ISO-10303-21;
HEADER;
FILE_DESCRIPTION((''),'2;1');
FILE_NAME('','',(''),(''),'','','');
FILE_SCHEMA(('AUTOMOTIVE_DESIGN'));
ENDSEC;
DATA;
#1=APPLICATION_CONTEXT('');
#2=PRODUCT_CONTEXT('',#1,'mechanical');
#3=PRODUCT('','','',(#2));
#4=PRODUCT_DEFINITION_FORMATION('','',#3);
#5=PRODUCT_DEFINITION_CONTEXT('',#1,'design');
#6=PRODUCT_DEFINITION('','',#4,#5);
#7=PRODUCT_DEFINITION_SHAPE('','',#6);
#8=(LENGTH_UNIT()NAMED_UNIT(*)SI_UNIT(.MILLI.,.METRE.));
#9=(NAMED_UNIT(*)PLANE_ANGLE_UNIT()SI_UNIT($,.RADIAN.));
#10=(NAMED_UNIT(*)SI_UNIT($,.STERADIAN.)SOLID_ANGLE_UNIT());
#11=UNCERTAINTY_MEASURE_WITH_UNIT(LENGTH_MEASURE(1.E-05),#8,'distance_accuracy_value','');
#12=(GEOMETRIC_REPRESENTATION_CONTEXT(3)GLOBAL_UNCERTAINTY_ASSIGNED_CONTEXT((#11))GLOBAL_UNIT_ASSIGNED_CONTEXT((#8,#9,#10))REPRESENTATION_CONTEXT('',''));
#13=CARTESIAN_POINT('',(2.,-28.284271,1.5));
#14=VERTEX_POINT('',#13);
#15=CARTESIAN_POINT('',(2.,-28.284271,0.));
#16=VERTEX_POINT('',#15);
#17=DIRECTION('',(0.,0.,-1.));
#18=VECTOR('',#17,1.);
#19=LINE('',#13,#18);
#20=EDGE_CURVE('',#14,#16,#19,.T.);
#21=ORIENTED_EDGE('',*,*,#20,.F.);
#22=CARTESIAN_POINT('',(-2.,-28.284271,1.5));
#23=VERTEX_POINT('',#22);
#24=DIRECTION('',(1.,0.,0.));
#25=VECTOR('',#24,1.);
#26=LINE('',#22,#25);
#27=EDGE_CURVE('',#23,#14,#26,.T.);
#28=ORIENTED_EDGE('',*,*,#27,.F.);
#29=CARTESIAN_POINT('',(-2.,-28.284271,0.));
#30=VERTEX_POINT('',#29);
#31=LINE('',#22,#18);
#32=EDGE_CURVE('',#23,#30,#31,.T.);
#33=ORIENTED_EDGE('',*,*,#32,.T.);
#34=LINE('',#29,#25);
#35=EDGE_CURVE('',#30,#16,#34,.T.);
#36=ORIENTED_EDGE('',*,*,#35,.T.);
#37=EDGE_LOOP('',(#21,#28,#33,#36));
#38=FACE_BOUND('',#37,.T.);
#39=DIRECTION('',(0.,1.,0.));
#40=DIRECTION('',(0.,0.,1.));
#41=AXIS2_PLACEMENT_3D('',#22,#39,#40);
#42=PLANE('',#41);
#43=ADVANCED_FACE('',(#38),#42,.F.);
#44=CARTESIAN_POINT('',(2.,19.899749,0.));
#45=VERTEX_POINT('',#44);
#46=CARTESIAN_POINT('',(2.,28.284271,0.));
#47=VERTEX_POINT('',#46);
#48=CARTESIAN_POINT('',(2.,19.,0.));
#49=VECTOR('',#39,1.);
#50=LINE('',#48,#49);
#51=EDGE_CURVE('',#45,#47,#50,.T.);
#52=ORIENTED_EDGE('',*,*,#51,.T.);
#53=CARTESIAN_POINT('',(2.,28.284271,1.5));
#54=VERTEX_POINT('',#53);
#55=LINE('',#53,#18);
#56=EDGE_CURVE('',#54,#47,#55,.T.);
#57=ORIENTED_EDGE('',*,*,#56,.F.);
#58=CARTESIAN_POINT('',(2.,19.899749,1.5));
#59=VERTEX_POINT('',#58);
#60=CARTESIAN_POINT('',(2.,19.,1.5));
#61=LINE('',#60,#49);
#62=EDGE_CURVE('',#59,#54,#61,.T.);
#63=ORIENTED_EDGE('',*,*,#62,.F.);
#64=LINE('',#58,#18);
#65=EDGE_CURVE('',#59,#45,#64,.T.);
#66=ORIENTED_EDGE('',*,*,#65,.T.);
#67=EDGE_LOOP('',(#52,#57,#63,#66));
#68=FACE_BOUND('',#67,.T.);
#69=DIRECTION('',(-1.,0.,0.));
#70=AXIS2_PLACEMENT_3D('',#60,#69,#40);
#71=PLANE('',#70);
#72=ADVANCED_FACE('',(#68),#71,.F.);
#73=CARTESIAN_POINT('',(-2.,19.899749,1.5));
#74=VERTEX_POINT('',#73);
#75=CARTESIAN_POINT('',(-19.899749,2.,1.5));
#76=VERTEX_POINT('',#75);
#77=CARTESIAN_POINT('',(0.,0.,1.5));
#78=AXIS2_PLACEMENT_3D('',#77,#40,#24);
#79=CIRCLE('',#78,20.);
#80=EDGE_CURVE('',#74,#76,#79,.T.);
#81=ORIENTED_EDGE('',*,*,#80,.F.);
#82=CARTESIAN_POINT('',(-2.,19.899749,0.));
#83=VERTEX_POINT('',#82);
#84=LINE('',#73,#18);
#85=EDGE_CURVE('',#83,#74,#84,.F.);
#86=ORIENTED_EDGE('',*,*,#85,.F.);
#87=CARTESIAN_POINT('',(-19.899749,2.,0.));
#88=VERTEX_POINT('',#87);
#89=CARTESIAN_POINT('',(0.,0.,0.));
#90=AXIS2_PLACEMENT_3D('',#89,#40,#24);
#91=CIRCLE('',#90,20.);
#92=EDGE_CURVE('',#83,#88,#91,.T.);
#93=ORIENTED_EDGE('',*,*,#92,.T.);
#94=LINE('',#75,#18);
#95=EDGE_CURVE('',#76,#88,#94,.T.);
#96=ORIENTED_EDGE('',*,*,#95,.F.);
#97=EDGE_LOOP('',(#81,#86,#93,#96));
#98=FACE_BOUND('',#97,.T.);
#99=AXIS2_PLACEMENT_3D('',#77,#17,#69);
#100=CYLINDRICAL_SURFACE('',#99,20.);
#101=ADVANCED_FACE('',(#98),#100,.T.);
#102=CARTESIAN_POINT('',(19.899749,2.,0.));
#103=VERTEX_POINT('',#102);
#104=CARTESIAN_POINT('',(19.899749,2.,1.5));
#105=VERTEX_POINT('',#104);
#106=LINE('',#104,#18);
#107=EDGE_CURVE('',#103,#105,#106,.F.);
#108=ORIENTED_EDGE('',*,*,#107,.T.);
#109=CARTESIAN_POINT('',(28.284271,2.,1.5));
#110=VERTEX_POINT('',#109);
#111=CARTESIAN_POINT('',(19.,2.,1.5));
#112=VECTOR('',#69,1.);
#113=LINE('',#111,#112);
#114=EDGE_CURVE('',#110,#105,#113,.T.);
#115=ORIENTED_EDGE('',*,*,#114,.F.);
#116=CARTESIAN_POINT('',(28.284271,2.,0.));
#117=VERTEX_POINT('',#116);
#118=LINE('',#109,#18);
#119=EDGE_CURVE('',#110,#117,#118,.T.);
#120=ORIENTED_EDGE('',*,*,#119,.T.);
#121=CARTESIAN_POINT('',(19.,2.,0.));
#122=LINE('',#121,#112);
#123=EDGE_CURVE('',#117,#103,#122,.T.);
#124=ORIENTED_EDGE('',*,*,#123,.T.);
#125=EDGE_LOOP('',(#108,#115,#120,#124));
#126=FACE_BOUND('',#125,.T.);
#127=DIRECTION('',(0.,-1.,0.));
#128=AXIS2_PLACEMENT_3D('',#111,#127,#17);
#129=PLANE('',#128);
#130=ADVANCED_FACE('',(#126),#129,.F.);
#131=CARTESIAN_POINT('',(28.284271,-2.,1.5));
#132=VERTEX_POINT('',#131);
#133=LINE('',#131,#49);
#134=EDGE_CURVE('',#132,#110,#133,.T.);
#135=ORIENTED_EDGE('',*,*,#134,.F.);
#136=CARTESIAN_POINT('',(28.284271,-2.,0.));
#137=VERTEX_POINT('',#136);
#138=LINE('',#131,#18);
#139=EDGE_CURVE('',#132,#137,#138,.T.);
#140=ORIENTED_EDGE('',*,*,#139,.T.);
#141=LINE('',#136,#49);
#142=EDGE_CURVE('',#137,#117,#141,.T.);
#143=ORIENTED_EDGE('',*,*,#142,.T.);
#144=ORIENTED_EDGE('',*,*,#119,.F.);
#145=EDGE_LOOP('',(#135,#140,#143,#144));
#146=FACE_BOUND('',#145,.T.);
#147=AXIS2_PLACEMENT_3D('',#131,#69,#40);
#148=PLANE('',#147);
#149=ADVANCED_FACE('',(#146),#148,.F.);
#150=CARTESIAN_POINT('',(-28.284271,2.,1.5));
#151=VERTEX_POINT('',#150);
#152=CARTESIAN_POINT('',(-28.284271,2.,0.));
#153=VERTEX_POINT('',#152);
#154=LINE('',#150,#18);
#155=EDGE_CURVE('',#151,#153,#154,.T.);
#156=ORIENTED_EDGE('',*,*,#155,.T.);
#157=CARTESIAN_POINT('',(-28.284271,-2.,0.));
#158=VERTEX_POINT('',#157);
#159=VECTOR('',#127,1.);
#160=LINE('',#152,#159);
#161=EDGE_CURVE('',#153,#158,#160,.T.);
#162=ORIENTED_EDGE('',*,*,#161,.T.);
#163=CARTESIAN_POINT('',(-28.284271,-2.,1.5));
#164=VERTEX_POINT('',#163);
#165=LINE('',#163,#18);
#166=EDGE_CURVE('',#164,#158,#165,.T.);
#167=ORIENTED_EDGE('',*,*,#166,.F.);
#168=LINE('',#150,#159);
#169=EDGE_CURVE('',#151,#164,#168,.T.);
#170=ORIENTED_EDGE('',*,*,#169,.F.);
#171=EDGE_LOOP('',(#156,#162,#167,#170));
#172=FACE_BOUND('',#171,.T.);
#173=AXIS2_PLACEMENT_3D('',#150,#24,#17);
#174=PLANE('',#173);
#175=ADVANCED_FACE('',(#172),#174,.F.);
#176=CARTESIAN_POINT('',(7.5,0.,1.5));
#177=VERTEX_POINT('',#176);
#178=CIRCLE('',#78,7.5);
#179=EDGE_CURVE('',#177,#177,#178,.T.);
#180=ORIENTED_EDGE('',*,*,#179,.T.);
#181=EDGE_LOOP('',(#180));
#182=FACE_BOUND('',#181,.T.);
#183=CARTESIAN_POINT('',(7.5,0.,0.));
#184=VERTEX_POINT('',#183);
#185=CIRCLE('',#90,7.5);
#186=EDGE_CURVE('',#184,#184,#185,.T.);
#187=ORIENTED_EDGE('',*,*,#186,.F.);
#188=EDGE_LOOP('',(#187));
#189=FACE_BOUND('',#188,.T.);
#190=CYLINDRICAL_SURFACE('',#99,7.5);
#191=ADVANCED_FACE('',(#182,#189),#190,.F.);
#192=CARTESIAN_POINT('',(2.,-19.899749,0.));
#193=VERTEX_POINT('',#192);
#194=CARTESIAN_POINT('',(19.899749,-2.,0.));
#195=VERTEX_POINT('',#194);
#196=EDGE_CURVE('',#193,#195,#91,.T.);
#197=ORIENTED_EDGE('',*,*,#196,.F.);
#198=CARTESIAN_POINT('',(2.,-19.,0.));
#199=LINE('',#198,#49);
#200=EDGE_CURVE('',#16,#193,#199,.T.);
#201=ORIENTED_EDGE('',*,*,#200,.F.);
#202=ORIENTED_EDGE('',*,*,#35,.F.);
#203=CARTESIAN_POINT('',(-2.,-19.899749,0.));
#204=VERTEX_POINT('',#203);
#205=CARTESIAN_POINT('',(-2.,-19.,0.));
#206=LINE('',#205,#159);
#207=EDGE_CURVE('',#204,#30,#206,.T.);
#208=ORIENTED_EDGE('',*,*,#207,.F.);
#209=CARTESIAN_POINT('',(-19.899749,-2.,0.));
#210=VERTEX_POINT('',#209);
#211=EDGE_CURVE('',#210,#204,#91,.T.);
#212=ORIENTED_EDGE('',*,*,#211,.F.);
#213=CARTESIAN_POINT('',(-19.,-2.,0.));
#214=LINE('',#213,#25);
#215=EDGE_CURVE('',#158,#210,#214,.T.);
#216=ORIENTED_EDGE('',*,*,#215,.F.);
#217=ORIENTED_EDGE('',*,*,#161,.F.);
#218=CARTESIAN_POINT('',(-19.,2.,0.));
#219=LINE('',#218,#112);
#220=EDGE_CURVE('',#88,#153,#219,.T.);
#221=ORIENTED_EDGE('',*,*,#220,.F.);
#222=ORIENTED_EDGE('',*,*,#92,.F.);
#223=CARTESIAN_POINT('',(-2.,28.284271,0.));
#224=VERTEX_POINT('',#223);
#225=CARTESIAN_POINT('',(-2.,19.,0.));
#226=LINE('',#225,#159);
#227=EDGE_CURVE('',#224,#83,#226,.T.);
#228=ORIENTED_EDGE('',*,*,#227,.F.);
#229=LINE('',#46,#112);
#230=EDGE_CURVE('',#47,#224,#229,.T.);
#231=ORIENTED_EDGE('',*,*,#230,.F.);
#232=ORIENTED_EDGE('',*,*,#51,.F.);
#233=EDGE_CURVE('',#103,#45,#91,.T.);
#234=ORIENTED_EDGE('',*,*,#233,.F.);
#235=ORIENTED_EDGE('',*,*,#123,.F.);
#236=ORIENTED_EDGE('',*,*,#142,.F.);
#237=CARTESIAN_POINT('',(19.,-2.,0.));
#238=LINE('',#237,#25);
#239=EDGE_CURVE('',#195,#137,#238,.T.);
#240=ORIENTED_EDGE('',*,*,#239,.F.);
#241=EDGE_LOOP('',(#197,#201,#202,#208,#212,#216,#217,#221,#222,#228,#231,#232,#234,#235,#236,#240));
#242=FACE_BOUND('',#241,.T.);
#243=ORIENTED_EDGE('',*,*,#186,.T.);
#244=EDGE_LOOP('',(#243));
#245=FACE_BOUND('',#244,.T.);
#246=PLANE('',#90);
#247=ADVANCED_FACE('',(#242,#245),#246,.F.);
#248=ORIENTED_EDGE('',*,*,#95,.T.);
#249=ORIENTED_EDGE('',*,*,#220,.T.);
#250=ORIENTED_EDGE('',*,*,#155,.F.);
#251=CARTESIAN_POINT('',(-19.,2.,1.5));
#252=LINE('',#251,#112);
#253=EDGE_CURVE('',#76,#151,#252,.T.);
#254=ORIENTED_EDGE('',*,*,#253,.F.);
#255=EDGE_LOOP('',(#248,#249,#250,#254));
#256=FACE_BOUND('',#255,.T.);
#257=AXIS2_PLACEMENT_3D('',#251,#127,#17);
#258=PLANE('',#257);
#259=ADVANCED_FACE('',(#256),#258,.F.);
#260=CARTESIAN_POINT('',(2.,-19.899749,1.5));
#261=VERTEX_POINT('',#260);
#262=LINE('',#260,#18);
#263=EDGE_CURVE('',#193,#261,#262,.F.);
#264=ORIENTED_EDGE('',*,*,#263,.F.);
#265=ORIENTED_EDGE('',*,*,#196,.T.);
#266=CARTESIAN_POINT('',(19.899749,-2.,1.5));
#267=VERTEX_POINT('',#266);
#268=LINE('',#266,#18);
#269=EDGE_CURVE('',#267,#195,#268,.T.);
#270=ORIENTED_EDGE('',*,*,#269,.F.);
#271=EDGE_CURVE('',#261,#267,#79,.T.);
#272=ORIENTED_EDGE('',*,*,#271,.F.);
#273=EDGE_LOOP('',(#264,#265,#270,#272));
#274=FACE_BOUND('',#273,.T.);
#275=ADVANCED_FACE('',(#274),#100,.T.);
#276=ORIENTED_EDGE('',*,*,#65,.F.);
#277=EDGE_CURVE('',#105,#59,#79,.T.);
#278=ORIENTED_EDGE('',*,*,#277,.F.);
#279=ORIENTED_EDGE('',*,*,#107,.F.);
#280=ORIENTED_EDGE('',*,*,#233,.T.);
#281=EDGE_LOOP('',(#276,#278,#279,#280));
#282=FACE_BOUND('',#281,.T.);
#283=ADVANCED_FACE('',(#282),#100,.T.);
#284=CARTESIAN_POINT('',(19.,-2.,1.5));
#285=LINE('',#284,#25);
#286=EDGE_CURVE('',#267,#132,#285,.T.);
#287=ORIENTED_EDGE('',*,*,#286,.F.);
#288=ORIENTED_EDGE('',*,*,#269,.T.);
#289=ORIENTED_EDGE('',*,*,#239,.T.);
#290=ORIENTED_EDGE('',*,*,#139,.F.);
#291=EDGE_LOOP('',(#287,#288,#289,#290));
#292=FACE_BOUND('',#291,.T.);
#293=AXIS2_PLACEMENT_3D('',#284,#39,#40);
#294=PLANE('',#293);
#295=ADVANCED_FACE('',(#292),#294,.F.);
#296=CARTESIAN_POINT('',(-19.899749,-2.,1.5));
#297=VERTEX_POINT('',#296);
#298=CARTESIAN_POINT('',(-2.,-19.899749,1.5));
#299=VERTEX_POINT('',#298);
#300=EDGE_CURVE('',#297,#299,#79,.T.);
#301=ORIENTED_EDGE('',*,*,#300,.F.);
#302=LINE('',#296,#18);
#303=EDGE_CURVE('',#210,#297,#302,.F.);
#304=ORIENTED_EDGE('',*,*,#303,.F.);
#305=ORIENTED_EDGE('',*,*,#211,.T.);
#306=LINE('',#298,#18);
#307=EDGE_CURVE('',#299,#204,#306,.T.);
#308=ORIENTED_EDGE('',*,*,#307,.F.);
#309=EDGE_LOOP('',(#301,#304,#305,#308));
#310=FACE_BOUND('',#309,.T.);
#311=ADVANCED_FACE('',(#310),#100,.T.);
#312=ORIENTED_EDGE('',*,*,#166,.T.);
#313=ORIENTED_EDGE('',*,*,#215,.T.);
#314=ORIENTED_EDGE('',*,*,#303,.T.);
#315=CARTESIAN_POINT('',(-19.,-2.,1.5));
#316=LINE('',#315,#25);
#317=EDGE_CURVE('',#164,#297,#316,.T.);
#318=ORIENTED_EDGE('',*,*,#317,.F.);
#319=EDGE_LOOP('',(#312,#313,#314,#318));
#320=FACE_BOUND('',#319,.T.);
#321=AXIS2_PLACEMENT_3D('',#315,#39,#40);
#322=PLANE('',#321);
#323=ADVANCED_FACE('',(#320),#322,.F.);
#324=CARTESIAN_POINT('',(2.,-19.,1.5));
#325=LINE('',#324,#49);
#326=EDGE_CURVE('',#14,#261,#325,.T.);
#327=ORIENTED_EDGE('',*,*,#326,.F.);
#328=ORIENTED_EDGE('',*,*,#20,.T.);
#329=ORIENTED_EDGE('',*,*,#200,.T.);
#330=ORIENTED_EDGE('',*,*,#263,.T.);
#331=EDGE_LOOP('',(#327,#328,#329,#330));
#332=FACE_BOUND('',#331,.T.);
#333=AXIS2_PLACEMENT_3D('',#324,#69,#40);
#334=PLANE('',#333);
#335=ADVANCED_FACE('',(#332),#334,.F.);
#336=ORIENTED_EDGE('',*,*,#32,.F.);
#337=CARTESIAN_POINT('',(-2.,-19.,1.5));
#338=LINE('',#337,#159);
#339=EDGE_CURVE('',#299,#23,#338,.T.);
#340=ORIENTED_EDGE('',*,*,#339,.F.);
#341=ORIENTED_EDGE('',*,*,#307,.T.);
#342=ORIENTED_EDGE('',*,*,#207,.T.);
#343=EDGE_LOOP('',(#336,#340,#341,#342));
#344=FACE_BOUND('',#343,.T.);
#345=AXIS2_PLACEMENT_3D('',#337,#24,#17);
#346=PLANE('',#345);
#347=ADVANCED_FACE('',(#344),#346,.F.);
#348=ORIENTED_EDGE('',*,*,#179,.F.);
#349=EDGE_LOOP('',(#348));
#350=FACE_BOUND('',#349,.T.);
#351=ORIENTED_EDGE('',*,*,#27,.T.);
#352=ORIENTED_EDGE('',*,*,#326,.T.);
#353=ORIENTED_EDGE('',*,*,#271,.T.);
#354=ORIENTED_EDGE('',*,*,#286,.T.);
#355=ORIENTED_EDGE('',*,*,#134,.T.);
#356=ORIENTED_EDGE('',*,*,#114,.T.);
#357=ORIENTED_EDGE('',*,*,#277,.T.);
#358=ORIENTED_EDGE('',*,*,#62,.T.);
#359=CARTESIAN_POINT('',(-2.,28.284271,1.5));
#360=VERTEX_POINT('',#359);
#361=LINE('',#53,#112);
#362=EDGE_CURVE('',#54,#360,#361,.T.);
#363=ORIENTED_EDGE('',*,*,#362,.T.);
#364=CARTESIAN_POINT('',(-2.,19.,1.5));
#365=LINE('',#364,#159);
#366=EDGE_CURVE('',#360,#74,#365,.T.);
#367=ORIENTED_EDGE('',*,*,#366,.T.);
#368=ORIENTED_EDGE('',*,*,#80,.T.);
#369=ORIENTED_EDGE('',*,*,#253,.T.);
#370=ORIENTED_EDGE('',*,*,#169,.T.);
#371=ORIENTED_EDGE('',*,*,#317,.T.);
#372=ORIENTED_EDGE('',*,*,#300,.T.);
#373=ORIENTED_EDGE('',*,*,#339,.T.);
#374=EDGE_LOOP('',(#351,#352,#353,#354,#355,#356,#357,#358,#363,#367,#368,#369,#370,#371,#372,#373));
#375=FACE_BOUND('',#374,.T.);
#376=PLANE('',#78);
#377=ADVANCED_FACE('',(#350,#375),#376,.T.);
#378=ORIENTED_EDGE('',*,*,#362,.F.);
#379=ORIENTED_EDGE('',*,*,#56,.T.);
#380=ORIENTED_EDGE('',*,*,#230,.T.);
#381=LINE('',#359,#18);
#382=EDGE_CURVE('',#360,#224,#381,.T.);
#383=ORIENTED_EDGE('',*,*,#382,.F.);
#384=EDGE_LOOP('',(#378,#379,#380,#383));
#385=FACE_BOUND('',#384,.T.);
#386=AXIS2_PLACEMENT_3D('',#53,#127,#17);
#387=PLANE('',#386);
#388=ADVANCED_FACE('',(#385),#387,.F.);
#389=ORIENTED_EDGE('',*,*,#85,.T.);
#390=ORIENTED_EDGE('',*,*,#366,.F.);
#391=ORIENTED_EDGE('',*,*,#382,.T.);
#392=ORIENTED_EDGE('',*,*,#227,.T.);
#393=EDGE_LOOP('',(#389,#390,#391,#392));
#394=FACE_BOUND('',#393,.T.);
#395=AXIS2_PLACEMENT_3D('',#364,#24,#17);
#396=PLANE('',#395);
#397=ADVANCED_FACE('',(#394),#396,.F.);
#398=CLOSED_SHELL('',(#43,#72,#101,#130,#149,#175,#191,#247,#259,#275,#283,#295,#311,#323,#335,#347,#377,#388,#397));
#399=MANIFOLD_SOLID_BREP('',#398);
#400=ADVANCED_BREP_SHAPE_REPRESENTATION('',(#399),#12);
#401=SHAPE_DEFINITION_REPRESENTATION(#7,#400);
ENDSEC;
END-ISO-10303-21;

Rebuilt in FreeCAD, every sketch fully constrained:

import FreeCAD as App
import Part
import Sketcher
from FreeCAD import Vector
Q = App.Units.Quantity

doc = App.newDocument("Part")
body = doc.addObject("PartDesign::Body", "Body")

sketch1 = doc.addObject("Sketcher::SketchObject", "Sketch")
body.addObject(sketch1)
sketch1.AttachmentSupport = (doc.XY_Plane, [""])
sketch1.MapMode = "FlatFace"
sketch1.addGeometry(Part.Circle(Vector(0, 0, 0), Vector(0, 0, 1), 20), False)
sketch1.addGeometry(Part.Circle(Vector(0, 0, 0), Vector(0, 0, 1), 8), False)
sketch1.addConstraint(Sketcher.Constraint("Coincident", 0, 3, -1, 1))
sketch1.addConstraint(Sketcher.Constraint("Coincident", 1, 3, -1, 1))
sketch1.addConstraint(Sketcher.Constraint("Diameter", 0, Q("40 mm")))
sketch1.addConstraint(Sketcher.Constraint("Diameter", 1, Q("15 mm")))
pad1 = doc.addObject("PartDesign::Pad", "Pad")
body.addObject(pad1)
pad1.Profile = sketch1
pad1.Length = 1.5

sketch2 = doc.addObject("Sketcher::SketchObject", "Sketch001")
body.addObject(sketch2)
sketch2.AttachmentSupport = (doc.XY_Plane, [""])
sketch2.MapMode = "FlatFace"
sketch2.addGeometry(Part.LineSegment(Vector(19, 2, 0), Vector(19, -2, 0)), False)
sketch2.addGeometry(Part.LineSegment(Vector(19, -2, 0), Vector(28.3, -2, 0)), False)
sketch2.addGeometry(Part.LineSegment(Vector(28.3, -2, 0), Vector(28.3, 2, 0)), False)
sketch2.addGeometry(Part.LineSegment(Vector(28.3, 2, 0), Vector(19, 2, 0)), False)
sketch2.addGeometry(Part.LineSegment(Vector(-2, 28.3, 0), Vector(-2, 19, 0)), False)
sketch2.addGeometry(Part.LineSegment(Vector(-2, 19, 0), Vector(2, 19, 0)), False)
sketch2.addGeometry(Part.LineSegment(Vector(2, 19, 0), Vector(2, 28.3, 0)), False)
sketch2.addGeometry(Part.LineSegment(Vector(2, 28.3, 0), Vector(-2, 28.3, 0)), False)
sketch2.addGeometry(Part.LineSegment(Vector(-28.3, 2, 0), Vector(-28.3, -2, 0)), False)
sketch2.addGeometry(Part.LineSegment(Vector(-28.3, -2, 0), Vector(-19, -2, 0)), False)
sketch2.addGeometry(Part.LineSegment(Vector(-19, -2, 0), Vector(-19, 2, 0)), False)
sketch2.addGeometry(Part.LineSegment(Vector(-19, 2, 0), Vector(-28.3, 2, 0)), False)
sketch2.addGeometry(Part.LineSegment(Vector(-2, -19, 0), Vector(-2, -28.3, 0)), False)
sketch2.addGeometry(Part.LineSegment(Vector(-2, -28.3, 0), Vector(2, -28.3, 0)), False)
sketch2.addGeometry(Part.LineSegment(Vector(2, -28.3, 0), Vector(2, -19, 0)), False)
sketch2.addGeometry(Part.LineSegment(Vector(2, -19, 0), Vector(-2, -19, 0)), False)
sketch2.addConstraint(Sketcher.Constraint("Coincident", 0, 2, 1, 1))
sketch2.addConstraint(Sketcher.Constraint("Coincident", 1, 2, 2, 1))
sketch2.addConstraint(Sketcher.Constraint("Coincident", 2, 2, 3, 1))
sketch2.addConstraint(Sketcher.Constraint("Coincident", 3, 2, 0, 1))
sketch2.addConstraint(Sketcher.Constraint("Coincident", 4, 2, 5, 1))
sketch2.addConstraint(Sketcher.Constraint("Coincident", 5, 2, 6, 1))
sketch2.addConstraint(Sketcher.Constraint("Coincident", 6, 2, 7, 1))
sketch2.addConstraint(Sketcher.Constraint("Coincident", 7, 2, 4, 1))
sketch2.addConstraint(Sketcher.Constraint("Coincident", 8, 2, 9, 1))
sketch2.addConstraint(Sketcher.Constraint("Coincident", 9, 2, 10, 1))
sketch2.addConstraint(Sketcher.Constraint("Coincident", 10, 2, 11, 1))
sketch2.addConstraint(Sketcher.Constraint("Coincident", 11, 2, 8, 1))
sketch2.addConstraint(Sketcher.Constraint("Coincident", 12, 2, 13, 1))
sketch2.addConstraint(Sketcher.Constraint("Coincident", 13, 2, 14, 1))
sketch2.addConstraint(Sketcher.Constraint("Coincident", 14, 2, 15, 1))
sketch2.addConstraint(Sketcher.Constraint("Coincident", 15, 2, 12, 1))
sketch2.addConstraint(Sketcher.Constraint("Vertical", 0))
sketch2.addConstraint(Sketcher.Constraint("Horizontal", 1))
sketch2.addConstraint(Sketcher.Constraint("Vertical", 2))
sketch2.addConstraint(Sketcher.Constraint("Horizontal", 3))
sketch2.addConstraint(Sketcher.Constraint("Vertical", 4))
sketch2.addConstraint(Sketcher.Constraint("Horizontal", 5))
sketch2.addConstraint(Sketcher.Constraint("Vertical", 6))
sketch2.addConstraint(Sketcher.Constraint("Horizontal", 7))
sketch2.addConstraint(Sketcher.Constraint("Vertical", 8))
sketch2.addConstraint(Sketcher.Constraint("Horizontal", 9))
sketch2.addConstraint(Sketcher.Constraint("Vertical", 10))
sketch2.addConstraint(Sketcher.Constraint("Horizontal", 11))
sketch2.addConstraint(Sketcher.Constraint("Vertical", 12))
sketch2.addConstraint(Sketcher.Constraint("Horizontal", 13))
sketch2.addConstraint(Sketcher.Constraint("Vertical", 14))
sketch2.addConstraint(Sketcher.Constraint("Horizontal", 15))
sketch2.addConstraint(Sketcher.Constraint("Symmetric", 2, 2, 8, 2, -1, 1))
sketch2.addConstraint(Sketcher.Constraint("Symmetric", 0, 2, 10, 2, -1, 1))
sketch2.addConstraint(Sketcher.Constraint("Symmetric", 6, 2, 12, 2, -1, 1))
sketch2.addConstraint(Sketcher.Constraint("Symmetric", 4, 2, 14, 2, -1, 1))
sketch2.addConstraint(Sketcher.Constraint("Horizontal", 1, 2, 8, 2))
sketch2.addConstraint(Sketcher.Constraint("Vertical", 7, 2, 12, 2))
sketch2.addConstraint(Sketcher.Constraint("Equal", 15, 0))
sketch2.addConstraint(Sketcher.Constraint("Equal", 11, 4))
sketch2.addConstraint(Sketcher.Constraint("DistanceX", 5, 1, 5, 2, Q("4 mm")))
sketch2.addConstraint(Sketcher.Constraint("DistanceX", -1, 1, 0, 2, Q("19 mm")))
sketch2.addConstraint(Sketcher.Constraint("DistanceY", -1, 1, 4, 2, Q("19 mm")))
sketch2.addConstraint(Sketcher.Constraint("DistanceX", 1, 1, 1, 2, Q("9.284271 mm")))
pad2 = doc.addObject("PartDesign::Pad", "Pad001")
body.addObject(pad2)
pad2.Profile = sketch2
pad2.Length = 1.5

doc.recompute()
